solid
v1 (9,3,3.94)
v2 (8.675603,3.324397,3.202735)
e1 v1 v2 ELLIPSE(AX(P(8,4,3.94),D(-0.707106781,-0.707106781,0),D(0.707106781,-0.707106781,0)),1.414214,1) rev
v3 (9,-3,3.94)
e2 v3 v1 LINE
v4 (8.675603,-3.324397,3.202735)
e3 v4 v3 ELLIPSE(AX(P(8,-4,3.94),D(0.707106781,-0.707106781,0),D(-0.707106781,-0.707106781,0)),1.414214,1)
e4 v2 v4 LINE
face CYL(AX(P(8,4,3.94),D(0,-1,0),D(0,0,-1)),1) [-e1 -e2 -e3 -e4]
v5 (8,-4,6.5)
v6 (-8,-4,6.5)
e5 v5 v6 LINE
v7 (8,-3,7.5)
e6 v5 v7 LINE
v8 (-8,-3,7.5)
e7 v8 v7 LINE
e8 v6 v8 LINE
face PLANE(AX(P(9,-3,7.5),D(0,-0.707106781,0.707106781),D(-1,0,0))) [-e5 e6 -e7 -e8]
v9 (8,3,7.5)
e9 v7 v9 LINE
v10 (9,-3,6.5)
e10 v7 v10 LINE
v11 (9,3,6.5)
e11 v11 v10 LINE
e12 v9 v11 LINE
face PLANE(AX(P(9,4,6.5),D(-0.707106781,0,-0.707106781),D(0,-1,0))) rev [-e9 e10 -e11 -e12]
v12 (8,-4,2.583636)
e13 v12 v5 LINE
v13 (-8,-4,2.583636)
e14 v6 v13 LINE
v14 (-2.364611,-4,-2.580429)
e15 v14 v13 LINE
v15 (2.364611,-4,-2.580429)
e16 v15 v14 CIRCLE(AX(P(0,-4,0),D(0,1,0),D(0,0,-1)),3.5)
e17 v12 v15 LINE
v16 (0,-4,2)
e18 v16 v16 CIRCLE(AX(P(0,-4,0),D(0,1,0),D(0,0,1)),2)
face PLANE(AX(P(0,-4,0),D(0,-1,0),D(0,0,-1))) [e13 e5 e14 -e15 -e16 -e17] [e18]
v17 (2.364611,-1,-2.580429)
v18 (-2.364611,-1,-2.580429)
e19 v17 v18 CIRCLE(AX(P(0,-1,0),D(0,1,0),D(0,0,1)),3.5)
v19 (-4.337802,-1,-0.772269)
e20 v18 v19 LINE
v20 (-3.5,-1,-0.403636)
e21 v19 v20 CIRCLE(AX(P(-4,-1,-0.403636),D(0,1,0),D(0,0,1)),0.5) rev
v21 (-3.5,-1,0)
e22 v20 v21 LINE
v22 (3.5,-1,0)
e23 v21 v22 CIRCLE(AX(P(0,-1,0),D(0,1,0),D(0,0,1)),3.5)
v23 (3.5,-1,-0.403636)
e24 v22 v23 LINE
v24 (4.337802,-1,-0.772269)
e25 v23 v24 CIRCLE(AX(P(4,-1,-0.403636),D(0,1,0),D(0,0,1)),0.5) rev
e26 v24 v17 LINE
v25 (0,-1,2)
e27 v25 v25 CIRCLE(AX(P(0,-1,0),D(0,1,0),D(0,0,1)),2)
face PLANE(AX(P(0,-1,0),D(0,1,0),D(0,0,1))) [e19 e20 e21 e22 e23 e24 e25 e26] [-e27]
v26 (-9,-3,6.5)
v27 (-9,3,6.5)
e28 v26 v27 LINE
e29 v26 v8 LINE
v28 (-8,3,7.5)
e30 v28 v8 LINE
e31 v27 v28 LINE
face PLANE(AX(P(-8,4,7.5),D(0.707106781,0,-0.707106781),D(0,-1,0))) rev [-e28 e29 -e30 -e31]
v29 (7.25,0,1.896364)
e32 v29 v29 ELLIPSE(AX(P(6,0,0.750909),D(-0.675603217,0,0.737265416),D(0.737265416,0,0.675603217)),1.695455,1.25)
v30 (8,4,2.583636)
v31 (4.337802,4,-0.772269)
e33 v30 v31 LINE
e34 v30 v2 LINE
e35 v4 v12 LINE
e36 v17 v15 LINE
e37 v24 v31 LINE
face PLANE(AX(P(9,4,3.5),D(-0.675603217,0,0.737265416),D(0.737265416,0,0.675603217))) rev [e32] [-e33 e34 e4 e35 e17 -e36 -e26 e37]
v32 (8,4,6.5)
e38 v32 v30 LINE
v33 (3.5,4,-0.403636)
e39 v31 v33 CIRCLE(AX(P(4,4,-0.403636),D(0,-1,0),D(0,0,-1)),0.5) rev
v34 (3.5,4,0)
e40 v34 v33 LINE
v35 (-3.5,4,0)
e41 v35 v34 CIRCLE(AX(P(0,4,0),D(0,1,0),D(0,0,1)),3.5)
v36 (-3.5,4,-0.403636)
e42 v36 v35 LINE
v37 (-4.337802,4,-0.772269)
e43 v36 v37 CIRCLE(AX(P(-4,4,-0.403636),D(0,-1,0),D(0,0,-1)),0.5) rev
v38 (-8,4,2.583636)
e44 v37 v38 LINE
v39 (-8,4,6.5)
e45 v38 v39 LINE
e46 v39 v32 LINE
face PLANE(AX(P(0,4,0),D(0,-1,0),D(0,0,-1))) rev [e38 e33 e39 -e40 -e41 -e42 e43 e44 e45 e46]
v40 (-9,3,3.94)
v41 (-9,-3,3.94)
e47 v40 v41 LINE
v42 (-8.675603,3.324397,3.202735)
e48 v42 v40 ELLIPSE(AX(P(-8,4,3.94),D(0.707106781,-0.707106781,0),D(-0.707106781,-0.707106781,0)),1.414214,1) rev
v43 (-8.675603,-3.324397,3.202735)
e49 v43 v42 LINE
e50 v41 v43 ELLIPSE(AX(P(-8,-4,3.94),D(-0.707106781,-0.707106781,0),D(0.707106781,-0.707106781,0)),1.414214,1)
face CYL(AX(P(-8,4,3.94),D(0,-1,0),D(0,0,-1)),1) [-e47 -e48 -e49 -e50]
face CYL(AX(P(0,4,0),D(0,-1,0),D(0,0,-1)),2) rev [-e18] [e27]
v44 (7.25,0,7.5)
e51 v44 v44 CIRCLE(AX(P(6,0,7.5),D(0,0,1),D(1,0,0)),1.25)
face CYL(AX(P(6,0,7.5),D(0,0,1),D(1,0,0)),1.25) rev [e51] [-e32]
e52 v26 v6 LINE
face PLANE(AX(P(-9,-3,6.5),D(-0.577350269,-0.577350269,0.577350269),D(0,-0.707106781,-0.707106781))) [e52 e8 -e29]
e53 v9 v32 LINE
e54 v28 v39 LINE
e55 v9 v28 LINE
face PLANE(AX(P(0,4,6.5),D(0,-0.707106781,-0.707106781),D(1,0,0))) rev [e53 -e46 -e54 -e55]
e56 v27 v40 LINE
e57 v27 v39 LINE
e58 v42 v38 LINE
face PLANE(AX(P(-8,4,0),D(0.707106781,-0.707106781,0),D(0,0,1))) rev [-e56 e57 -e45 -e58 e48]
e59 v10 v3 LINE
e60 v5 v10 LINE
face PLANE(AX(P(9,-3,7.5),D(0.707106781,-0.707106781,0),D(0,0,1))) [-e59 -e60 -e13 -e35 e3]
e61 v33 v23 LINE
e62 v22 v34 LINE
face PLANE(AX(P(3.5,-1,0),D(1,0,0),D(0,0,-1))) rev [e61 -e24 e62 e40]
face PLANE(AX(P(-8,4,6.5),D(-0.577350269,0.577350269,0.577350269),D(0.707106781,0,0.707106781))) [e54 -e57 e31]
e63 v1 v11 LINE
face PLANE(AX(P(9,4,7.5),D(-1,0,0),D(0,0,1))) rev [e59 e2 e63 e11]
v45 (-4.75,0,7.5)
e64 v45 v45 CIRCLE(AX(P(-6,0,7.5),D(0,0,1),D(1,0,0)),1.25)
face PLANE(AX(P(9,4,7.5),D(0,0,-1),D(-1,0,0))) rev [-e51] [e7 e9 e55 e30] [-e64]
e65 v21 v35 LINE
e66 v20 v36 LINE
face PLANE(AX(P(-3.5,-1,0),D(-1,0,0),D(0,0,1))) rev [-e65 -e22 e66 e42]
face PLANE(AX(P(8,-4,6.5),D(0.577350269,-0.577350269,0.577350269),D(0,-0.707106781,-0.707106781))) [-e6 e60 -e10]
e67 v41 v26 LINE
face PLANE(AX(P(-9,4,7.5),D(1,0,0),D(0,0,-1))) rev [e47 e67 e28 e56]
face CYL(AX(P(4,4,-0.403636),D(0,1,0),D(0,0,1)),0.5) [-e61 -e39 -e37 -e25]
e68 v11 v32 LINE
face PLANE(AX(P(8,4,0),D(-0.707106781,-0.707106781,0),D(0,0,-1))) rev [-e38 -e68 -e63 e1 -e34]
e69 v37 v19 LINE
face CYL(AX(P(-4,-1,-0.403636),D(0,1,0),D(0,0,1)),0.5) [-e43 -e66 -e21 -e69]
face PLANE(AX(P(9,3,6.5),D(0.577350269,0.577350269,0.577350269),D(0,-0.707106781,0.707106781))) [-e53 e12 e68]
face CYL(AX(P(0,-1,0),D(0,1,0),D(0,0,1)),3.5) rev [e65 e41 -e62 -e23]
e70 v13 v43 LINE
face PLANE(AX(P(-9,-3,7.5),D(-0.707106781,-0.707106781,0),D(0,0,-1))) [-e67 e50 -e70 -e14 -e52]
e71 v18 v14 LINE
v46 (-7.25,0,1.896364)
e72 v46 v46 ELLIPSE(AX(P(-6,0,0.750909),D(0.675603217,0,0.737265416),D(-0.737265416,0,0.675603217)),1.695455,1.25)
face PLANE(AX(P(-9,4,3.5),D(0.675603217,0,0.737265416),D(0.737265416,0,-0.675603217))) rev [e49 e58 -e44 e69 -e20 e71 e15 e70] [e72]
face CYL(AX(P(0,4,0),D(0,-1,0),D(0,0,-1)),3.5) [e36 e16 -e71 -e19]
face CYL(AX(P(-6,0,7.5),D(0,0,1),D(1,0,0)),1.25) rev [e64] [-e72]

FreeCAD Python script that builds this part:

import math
import FreeCAD as App
import Part
import Sketcher
from FreeCAD import Vector
Q = App.Units.Quantity


def edges_at(feature, points):
    """Names of the edges that pass closest to the given points."""
    edges = feature.Shape.Edges
    near = lambda p: min(range(len(edges)), key=lambda i: edges[i].distToShape(Part.Vertex(*p))[0])
    return sorted({f"Edge{near(p) + 1}" for p in points})

doc = App.newDocument("Part")
body = doc.addObject("PartDesign::Body", "Body")

sketch1 = body.newObject("Sketcher::SketchObject", "Sketch")
sketch1.AttachmentSupport = (doc.getObject("XZ_Plane"), [""])
sketch1.MapMode = "FlatFace"
sketch1.addGeometry([
    Part.LineSegment(Vector(-9, 7.5, 0), Vector(9, 7.5, 0)),
    Part.LineSegment(Vector(9, 7.5, 0), Vector(9, 3.5, 0)),
    Part.LineSegment(Vector(9, 3.5, 0), Vector(2.4, -2.6, 0)),
    Part.ArcOfCircle(Part.Circle(Vector(0, 0, 0), Vector(0, 0, 1), 3.5), math.radians(-133), math.radians(-47)),
    Part.LineSegment(Vector(-2.4, -2.6, 0), Vector(-9, 3.5, 0)),
    Part.LineSegment(Vector(-9, 3.5, 0), Vector(-9, 7.5, 0)),
    Part.Circle(Vector(0, 0, 0), Vector(0, 0, 1), 2),
], False)
sketch1.addConstraint([
    Sketcher.Constraint("Coincident", 0, 2, 1, 1),
    Sketcher.Constraint("Coincident", 1, 2, 2, 1),
    Sketcher.Constraint("Tangent", 2, 2, 3, 2),
    Sketcher.Constraint("Tangent", 3, 1, 4, 1),
    Sketcher.Constraint("Coincident", 4, 2, 5, 1),
    Sketcher.Constraint("Coincident", 5, 2, 0, 1),
    Sketcher.Constraint("Horizontal", 0),
    Sketcher.Constraint("Vertical", 1),
    Sketcher.Constraint("Vertical", 5),
    Sketcher.Constraint("Coincident", 3, 3, -1, 1),
    Sketcher.Constraint("Coincident", 6, 3, -1, 1),
    Sketcher.Constraint("Symmetric", 1, 2, 4, 2, -2),
    Sketcher.Constraint("Diameter", 6, Q("4 mm")),
    Sketcher.Constraint("Radius", 3, Q("3.5 mm")),
    Sketcher.Constraint("DistanceX", 0, 1, 0, 2, Q("18 mm")),
    Sketcher.Constraint("DistanceY", 1, 2, 1, 1, Q("4 mm")),
    Sketcher.Constraint("Distance", 2, Q("9 mm")),
])
pad1 = body.newObject("PartDesign::Pad", "Pad")
pad1.Profile = sketch1
pad1.Length = 8
pad1.Midplane = True

sketch2 = body.newObject("Sketcher::SketchObject", "Sketch001")
sketch2.AttachmentSupport = (doc.getObject("XY_Plane"), [""])
sketch2.MapMode = "FlatFace"
sketch2.AttachmentOffset = App.Placement(Vector(0, 0, 7.5), App.Rotation())
sketch2.addGeometry([
    Part.Circle(Vector(-6, 0, 0), Vector(0, 0, 1), 1.2),
    Part.Circle(Vector(6, 0, 0), Vector(0, 0, 1), 1.2),
], False)
sketch2.addConstraint([
    Sketcher.Constraint("Equal", 0, 1),
    Sketcher.Constraint("Symmetric", 0, 3, 1, 3, -1, 1),
    Sketcher.Constraint("PointOnObject", 0, 3, -1),
    Sketcher.Constraint("Diameter", 0, Q("2.5 mm")),
    Sketcher.Constraint("DistanceX", 0, 3, -1, 1, Q("6 mm")),
])
doc.recompute()
hole = body.newObject("PartDesign::Hole", "Hole")
hole.Profile = sketch2
hole.ThreadType = "None"
hole.Diameter = 2.5
hole.DepthType = "ThroughAll"

sketch3 = body.newObject("Sketcher::SketchObject", "Sketch002")
sketch3.AttachmentSupport = (doc.getObject("XZ_Plane"), [""])
sketch3.MapMode = "FlatFace"
sketch3.AttachmentOffset = App.Placement(Vector(0, 0, -4), App.Rotation())
sketch3.addGeometry([
    Part.LineSegment(Vector(-3.5, -1.5, 0), Vector(-3.5, 0, 0)),
    Part.ArcOfCircle(Part.Circle(Vector(0, 0, 0), Vector(0, 0, 1), 3.5), math.radians(0), math.radians(180)),
    Part.LineSegment(Vector(3.5, 0, 0), Vector(3.5, -1.5, 0)),
    Part.LineSegment(Vector(3.5, -1.5, 0), Vector(2.4, -2.6, 0)),
    Part.ArcOfCircle(Part.Circle(Vector(0, 0, 0), Vector(0, 0, 1), 3.5), math.radians(-133), math.radians(-47)),
    Part.LineSegment(Vector(-2.4, -2.6, 0), Vector(-3.5, -1.5, 0)),
], False)
sketch3.addConstraint([
    Sketcher.Constraint("Tangent", 0, 2, 1, 2),
    Sketcher.Constraint("Tangent", 1, 1, 2, 1),
    Sketcher.Constraint("Coincident", 2, 2, 3, 1),
    Sketcher.Constraint("Tangent", 3, 2, 4, 2),
    Sketcher.Constraint("Tangent", 4, 1, 5, 1),
    Sketcher.Constraint("Coincident", 5, 2, 0, 1),
    Sketcher.Constraint("Vertical", 0),
    Sketcher.Constraint("Vertical", 2),
    Sketcher.Constraint("Coincident", 1, 3, -1, 1),
    Sketcher.Constraint("Coincident", 4, 3, -1, 1),
    Sketcher.Constraint("Equal", 1, 4),
    Sketcher.Constraint("Horizontal", 3, 2, 4, 1),
    Sketcher.Constraint("Radius", 1, Q("3.5 mm")),
    Sketcher.Constraint("DistanceY", 0, 1, 0, 2, Q("1.54 mm")),
])
pocket1 = body.newObject("PartDesign::Pocket", "Pocket")
pocket1.Profile = sketch3
pocket1.Length = 5
pocket1.Reversed = True
doc.recompute()

chamfer = body.newObject("PartDesign::Chamfer", "Chamfer")
chamfer.Base = (pocket1, edges_at(pocket1, [
    (9, 0, 7.5),
    (-9, 0, 7.5),
    (-9, 4, 5.5),
    (0, 4, 7.5),
    (9, 4, 5.5),
    (0, -4, 7.5),
    (-9, -4, 5.5),
    (9, -4, 5.5),
]))
chamfer.Size = 1
doc.recompute()

fillet = body.newObject("PartDesign::Fillet", "Fillet")
fillet.Base = (chamfer, edges_at(chamfer, [(-9, 0, 3.5), (9, 0, 3.5)]))
fillet.Radius = 1
doc.recompute()

fillet2 = body.newObject("PartDesign::Fillet", "Fillet001")
fillet2.Base = (fillet, edges_at(fillet, [(-3.5, 1.5, -1.54), (3.5, 1.5, -1.54)]))
fillet2.Radius = 0.5

doc.recompute()
